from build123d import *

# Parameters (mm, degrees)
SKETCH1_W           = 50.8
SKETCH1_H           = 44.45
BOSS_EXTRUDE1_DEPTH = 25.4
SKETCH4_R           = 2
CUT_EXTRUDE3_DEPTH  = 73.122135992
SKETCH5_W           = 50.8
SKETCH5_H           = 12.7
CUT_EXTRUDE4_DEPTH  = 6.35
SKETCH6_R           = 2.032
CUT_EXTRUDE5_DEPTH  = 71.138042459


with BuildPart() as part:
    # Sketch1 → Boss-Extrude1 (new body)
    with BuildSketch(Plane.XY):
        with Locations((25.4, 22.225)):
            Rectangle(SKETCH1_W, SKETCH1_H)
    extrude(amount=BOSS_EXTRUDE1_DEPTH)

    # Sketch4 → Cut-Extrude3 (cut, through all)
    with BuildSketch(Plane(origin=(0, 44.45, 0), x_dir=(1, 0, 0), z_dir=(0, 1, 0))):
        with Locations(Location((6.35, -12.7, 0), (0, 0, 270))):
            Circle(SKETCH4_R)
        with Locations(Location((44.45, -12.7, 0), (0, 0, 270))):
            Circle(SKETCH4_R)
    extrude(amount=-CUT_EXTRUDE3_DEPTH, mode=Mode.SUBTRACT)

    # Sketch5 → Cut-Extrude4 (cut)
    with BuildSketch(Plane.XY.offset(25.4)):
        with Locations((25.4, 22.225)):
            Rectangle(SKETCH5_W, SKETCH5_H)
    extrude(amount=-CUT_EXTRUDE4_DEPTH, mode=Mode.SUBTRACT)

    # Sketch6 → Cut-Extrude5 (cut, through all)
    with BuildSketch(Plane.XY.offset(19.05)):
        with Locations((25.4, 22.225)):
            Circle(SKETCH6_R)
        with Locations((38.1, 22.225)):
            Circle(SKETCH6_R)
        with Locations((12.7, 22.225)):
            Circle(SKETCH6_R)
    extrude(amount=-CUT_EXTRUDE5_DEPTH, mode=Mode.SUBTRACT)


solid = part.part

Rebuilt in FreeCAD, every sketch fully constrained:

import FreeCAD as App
import Part
import Sketcher
from FreeCAD import Vector
Q = App.Units.Quantity


def add_polygon(sketch, points):
    """Adds a closed chain of lines whose ends are joined by coincident constraints."""
    first, n = sketch.GeometryCount, len(points)
    for a, b in zip(points, points[1:] + points[:1]):
        sketch.addGeometry(Part.LineSegment(App.Vector(*a, 0), App.Vector(*b, 0)), False)
    for i in range(n):
        sketch.addConstraint(Sketcher.Constraint("Coincident", first + i, 2, first + (i + 1) % n, 1))

doc = App.newDocument("Part")
body = doc.addObject("PartDesign::Body", "Body")

sketch1 = doc.addObject("Sketcher::SketchObject", "Sketch")
body.addObject(sketch1)
sketch1.AttachmentSupport = (doc.XY_Plane, [""])
sketch1.MapMode = "FlatFace"
add_polygon(sketch1, [(0, 44), (0, 0), (51, 0), (51, 44)])
sketch1.addConstraint([
    Sketcher.Constraint("Vertical", 0),
    Sketcher.Constraint("Horizontal", 1),
    Sketcher.Constraint("Vertical", 2),
    Sketcher.Constraint("Horizontal", 3),
    Sketcher.Constraint("Coincident", 0, 2, -1, 1),
    Sketcher.Constraint("DistanceX", 1, 1, 1, 2, Q("2 in")),
    Sketcher.Constraint("DistanceY", 0, 2, 0, 1, Q("1.75 in")),
])
pad1 = doc.addObject("PartDesign::Pad", "Pad")
body.addObject(pad1)
pad1.Profile = sketch1
pad1.Length = Q("1 in")

sketch2 = doc.addObject("Sketcher::SketchObject", "Sketch001")
body.addObject(sketch2)
sketch2.AttachmentSupport = (doc.XZ_Plane, [""])
sketch2.MapMode = "FlatFace"
sketch2.AttachmentOffset = App.Placement(Vector(0, 0, -1.75 * 25.4), App.Rotation())
sketch2.addGeometry([
    Part.Circle(Vector(6.3, 12.7, 0), Vector(0, 0, 1), 2),
    Part.Circle(Vector(44.5, 12.7, 0), Vector(0, 0, 1), 2),
], False)
sketch2.addConstraint([
    Sketcher.Constraint("Equal", 0, 1),
    Sketcher.Constraint("Horizontal", 0, 3, 1, 3),
    Sketcher.Constraint("DistanceY", -1, 1, 0, 3, Q("0.5 in")),
    Sketcher.Constraint("DistanceX", 0, 3, 1, 3, Q("1.5 in")),
    Sketcher.Constraint("Diameter", 0, Q("4 mm")),
    Sketcher.Constraint("DistanceX", -1, 1, 0, 3, Q("0.25 in")),
])
pocket1 = doc.addObject("PartDesign::Pocket", "Pocket")
body.addObject(pocket1)
pocket1.Profile = sketch2
pocket1.Type = "ThroughAll"
pocket1.Reversed = True

sketch3 = doc.addObject("Sketcher::SketchObject", "Sketch002")
body.addObject(sketch3)
sketch3.AttachmentSupport = (doc.XY_Plane, [""])
sketch3.MapMode = "FlatFace"
sketch3.AttachmentOffset = App.Placement(Vector(0, 0, 1 * 25.4), App.Rotation())
add_polygon(sketch3, [(0, 29), (0, 16), (51, 16), (51, 29)])
sketch3.addConstraint([
    Sketcher.Constraint("Vertical", 0),
    Sketcher.Constraint("Horizontal", 1),
    Sketcher.Constraint("Vertical", 2),
    Sketcher.Constraint("Horizontal", 3),
    Sketcher.Constraint("PointOnObject", 0, 2, -2),
    Sketcher.Constraint("DistanceX", 1, 1, 1, 2, Q("2 in")),
    Sketcher.Constraint("DistanceY", 0, 2, 0, 1, Q("0.5 in")),
    Sketcher.Constraint("DistanceY", -1, 1, 0, 2, Q("0.625 in")),
])
pocket2 = doc.addObject("PartDesign::Pocket", "Pocket001")
body.addObject(pocket2)
pocket2.Profile = sketch3
pocket2.Length = Q("0.25 in")

sketch4 = doc.addObject("Sketcher::SketchObject", "Sketch003")
body.addObject(sketch4)
sketch4.AttachmentSupport = (doc.XY_Plane, [""])
sketch4.MapMode = "FlatFace"
sketch4.AttachmentOffset = App.Placement(Vector(0, 0, 0.75 * 25.4), App.Rotation())
sketch4.addGeometry([
    Part.Circle(Vector(25.4, 22.2, 0), Vector(0, 0, 1), 2),
    Part.Circle(Vector(38.1, 22.2, 0), Vector(0, 0, 1), 2),
    Part.Circle(Vector(12.7, 22.2, 0), Vector(0, 0, 1), 2),
], False)
sketch4.addConstraint([
    Sketcher.Constraint("Equal", 0, 1),
    Sketcher.Constraint("Equal", 1, 2),
    Sketcher.Constraint("Horizontal", 0, 3, 1, 3),
    Sketcher.Constraint("Horizontal", 1, 3, 2, 3),
    Sketcher.Constraint("Diameter", 0, Q("0.16 in")),
    Sketcher.Constraint("DistanceX", -1, 1, 0, 3, Q("1 in")),
    Sketcher.Constraint("DistanceX", 2, 3, 1, 3, Q("1 in")),
    Sketcher.Constraint("DistanceX", -1, 1, 1, 3, Q("1.5 in")),
    Sketcher.Constraint("DistanceY", -1, 1, 0, 3, Q("0.875 in")),
])
pocket3 = doc.addObject("PartDesign::Pocket", "Pocket002")
body.addObject(pocket3)
pocket3.Profile = sketch4
pocket3.Type = "ThroughAll"

doc.recompute()
